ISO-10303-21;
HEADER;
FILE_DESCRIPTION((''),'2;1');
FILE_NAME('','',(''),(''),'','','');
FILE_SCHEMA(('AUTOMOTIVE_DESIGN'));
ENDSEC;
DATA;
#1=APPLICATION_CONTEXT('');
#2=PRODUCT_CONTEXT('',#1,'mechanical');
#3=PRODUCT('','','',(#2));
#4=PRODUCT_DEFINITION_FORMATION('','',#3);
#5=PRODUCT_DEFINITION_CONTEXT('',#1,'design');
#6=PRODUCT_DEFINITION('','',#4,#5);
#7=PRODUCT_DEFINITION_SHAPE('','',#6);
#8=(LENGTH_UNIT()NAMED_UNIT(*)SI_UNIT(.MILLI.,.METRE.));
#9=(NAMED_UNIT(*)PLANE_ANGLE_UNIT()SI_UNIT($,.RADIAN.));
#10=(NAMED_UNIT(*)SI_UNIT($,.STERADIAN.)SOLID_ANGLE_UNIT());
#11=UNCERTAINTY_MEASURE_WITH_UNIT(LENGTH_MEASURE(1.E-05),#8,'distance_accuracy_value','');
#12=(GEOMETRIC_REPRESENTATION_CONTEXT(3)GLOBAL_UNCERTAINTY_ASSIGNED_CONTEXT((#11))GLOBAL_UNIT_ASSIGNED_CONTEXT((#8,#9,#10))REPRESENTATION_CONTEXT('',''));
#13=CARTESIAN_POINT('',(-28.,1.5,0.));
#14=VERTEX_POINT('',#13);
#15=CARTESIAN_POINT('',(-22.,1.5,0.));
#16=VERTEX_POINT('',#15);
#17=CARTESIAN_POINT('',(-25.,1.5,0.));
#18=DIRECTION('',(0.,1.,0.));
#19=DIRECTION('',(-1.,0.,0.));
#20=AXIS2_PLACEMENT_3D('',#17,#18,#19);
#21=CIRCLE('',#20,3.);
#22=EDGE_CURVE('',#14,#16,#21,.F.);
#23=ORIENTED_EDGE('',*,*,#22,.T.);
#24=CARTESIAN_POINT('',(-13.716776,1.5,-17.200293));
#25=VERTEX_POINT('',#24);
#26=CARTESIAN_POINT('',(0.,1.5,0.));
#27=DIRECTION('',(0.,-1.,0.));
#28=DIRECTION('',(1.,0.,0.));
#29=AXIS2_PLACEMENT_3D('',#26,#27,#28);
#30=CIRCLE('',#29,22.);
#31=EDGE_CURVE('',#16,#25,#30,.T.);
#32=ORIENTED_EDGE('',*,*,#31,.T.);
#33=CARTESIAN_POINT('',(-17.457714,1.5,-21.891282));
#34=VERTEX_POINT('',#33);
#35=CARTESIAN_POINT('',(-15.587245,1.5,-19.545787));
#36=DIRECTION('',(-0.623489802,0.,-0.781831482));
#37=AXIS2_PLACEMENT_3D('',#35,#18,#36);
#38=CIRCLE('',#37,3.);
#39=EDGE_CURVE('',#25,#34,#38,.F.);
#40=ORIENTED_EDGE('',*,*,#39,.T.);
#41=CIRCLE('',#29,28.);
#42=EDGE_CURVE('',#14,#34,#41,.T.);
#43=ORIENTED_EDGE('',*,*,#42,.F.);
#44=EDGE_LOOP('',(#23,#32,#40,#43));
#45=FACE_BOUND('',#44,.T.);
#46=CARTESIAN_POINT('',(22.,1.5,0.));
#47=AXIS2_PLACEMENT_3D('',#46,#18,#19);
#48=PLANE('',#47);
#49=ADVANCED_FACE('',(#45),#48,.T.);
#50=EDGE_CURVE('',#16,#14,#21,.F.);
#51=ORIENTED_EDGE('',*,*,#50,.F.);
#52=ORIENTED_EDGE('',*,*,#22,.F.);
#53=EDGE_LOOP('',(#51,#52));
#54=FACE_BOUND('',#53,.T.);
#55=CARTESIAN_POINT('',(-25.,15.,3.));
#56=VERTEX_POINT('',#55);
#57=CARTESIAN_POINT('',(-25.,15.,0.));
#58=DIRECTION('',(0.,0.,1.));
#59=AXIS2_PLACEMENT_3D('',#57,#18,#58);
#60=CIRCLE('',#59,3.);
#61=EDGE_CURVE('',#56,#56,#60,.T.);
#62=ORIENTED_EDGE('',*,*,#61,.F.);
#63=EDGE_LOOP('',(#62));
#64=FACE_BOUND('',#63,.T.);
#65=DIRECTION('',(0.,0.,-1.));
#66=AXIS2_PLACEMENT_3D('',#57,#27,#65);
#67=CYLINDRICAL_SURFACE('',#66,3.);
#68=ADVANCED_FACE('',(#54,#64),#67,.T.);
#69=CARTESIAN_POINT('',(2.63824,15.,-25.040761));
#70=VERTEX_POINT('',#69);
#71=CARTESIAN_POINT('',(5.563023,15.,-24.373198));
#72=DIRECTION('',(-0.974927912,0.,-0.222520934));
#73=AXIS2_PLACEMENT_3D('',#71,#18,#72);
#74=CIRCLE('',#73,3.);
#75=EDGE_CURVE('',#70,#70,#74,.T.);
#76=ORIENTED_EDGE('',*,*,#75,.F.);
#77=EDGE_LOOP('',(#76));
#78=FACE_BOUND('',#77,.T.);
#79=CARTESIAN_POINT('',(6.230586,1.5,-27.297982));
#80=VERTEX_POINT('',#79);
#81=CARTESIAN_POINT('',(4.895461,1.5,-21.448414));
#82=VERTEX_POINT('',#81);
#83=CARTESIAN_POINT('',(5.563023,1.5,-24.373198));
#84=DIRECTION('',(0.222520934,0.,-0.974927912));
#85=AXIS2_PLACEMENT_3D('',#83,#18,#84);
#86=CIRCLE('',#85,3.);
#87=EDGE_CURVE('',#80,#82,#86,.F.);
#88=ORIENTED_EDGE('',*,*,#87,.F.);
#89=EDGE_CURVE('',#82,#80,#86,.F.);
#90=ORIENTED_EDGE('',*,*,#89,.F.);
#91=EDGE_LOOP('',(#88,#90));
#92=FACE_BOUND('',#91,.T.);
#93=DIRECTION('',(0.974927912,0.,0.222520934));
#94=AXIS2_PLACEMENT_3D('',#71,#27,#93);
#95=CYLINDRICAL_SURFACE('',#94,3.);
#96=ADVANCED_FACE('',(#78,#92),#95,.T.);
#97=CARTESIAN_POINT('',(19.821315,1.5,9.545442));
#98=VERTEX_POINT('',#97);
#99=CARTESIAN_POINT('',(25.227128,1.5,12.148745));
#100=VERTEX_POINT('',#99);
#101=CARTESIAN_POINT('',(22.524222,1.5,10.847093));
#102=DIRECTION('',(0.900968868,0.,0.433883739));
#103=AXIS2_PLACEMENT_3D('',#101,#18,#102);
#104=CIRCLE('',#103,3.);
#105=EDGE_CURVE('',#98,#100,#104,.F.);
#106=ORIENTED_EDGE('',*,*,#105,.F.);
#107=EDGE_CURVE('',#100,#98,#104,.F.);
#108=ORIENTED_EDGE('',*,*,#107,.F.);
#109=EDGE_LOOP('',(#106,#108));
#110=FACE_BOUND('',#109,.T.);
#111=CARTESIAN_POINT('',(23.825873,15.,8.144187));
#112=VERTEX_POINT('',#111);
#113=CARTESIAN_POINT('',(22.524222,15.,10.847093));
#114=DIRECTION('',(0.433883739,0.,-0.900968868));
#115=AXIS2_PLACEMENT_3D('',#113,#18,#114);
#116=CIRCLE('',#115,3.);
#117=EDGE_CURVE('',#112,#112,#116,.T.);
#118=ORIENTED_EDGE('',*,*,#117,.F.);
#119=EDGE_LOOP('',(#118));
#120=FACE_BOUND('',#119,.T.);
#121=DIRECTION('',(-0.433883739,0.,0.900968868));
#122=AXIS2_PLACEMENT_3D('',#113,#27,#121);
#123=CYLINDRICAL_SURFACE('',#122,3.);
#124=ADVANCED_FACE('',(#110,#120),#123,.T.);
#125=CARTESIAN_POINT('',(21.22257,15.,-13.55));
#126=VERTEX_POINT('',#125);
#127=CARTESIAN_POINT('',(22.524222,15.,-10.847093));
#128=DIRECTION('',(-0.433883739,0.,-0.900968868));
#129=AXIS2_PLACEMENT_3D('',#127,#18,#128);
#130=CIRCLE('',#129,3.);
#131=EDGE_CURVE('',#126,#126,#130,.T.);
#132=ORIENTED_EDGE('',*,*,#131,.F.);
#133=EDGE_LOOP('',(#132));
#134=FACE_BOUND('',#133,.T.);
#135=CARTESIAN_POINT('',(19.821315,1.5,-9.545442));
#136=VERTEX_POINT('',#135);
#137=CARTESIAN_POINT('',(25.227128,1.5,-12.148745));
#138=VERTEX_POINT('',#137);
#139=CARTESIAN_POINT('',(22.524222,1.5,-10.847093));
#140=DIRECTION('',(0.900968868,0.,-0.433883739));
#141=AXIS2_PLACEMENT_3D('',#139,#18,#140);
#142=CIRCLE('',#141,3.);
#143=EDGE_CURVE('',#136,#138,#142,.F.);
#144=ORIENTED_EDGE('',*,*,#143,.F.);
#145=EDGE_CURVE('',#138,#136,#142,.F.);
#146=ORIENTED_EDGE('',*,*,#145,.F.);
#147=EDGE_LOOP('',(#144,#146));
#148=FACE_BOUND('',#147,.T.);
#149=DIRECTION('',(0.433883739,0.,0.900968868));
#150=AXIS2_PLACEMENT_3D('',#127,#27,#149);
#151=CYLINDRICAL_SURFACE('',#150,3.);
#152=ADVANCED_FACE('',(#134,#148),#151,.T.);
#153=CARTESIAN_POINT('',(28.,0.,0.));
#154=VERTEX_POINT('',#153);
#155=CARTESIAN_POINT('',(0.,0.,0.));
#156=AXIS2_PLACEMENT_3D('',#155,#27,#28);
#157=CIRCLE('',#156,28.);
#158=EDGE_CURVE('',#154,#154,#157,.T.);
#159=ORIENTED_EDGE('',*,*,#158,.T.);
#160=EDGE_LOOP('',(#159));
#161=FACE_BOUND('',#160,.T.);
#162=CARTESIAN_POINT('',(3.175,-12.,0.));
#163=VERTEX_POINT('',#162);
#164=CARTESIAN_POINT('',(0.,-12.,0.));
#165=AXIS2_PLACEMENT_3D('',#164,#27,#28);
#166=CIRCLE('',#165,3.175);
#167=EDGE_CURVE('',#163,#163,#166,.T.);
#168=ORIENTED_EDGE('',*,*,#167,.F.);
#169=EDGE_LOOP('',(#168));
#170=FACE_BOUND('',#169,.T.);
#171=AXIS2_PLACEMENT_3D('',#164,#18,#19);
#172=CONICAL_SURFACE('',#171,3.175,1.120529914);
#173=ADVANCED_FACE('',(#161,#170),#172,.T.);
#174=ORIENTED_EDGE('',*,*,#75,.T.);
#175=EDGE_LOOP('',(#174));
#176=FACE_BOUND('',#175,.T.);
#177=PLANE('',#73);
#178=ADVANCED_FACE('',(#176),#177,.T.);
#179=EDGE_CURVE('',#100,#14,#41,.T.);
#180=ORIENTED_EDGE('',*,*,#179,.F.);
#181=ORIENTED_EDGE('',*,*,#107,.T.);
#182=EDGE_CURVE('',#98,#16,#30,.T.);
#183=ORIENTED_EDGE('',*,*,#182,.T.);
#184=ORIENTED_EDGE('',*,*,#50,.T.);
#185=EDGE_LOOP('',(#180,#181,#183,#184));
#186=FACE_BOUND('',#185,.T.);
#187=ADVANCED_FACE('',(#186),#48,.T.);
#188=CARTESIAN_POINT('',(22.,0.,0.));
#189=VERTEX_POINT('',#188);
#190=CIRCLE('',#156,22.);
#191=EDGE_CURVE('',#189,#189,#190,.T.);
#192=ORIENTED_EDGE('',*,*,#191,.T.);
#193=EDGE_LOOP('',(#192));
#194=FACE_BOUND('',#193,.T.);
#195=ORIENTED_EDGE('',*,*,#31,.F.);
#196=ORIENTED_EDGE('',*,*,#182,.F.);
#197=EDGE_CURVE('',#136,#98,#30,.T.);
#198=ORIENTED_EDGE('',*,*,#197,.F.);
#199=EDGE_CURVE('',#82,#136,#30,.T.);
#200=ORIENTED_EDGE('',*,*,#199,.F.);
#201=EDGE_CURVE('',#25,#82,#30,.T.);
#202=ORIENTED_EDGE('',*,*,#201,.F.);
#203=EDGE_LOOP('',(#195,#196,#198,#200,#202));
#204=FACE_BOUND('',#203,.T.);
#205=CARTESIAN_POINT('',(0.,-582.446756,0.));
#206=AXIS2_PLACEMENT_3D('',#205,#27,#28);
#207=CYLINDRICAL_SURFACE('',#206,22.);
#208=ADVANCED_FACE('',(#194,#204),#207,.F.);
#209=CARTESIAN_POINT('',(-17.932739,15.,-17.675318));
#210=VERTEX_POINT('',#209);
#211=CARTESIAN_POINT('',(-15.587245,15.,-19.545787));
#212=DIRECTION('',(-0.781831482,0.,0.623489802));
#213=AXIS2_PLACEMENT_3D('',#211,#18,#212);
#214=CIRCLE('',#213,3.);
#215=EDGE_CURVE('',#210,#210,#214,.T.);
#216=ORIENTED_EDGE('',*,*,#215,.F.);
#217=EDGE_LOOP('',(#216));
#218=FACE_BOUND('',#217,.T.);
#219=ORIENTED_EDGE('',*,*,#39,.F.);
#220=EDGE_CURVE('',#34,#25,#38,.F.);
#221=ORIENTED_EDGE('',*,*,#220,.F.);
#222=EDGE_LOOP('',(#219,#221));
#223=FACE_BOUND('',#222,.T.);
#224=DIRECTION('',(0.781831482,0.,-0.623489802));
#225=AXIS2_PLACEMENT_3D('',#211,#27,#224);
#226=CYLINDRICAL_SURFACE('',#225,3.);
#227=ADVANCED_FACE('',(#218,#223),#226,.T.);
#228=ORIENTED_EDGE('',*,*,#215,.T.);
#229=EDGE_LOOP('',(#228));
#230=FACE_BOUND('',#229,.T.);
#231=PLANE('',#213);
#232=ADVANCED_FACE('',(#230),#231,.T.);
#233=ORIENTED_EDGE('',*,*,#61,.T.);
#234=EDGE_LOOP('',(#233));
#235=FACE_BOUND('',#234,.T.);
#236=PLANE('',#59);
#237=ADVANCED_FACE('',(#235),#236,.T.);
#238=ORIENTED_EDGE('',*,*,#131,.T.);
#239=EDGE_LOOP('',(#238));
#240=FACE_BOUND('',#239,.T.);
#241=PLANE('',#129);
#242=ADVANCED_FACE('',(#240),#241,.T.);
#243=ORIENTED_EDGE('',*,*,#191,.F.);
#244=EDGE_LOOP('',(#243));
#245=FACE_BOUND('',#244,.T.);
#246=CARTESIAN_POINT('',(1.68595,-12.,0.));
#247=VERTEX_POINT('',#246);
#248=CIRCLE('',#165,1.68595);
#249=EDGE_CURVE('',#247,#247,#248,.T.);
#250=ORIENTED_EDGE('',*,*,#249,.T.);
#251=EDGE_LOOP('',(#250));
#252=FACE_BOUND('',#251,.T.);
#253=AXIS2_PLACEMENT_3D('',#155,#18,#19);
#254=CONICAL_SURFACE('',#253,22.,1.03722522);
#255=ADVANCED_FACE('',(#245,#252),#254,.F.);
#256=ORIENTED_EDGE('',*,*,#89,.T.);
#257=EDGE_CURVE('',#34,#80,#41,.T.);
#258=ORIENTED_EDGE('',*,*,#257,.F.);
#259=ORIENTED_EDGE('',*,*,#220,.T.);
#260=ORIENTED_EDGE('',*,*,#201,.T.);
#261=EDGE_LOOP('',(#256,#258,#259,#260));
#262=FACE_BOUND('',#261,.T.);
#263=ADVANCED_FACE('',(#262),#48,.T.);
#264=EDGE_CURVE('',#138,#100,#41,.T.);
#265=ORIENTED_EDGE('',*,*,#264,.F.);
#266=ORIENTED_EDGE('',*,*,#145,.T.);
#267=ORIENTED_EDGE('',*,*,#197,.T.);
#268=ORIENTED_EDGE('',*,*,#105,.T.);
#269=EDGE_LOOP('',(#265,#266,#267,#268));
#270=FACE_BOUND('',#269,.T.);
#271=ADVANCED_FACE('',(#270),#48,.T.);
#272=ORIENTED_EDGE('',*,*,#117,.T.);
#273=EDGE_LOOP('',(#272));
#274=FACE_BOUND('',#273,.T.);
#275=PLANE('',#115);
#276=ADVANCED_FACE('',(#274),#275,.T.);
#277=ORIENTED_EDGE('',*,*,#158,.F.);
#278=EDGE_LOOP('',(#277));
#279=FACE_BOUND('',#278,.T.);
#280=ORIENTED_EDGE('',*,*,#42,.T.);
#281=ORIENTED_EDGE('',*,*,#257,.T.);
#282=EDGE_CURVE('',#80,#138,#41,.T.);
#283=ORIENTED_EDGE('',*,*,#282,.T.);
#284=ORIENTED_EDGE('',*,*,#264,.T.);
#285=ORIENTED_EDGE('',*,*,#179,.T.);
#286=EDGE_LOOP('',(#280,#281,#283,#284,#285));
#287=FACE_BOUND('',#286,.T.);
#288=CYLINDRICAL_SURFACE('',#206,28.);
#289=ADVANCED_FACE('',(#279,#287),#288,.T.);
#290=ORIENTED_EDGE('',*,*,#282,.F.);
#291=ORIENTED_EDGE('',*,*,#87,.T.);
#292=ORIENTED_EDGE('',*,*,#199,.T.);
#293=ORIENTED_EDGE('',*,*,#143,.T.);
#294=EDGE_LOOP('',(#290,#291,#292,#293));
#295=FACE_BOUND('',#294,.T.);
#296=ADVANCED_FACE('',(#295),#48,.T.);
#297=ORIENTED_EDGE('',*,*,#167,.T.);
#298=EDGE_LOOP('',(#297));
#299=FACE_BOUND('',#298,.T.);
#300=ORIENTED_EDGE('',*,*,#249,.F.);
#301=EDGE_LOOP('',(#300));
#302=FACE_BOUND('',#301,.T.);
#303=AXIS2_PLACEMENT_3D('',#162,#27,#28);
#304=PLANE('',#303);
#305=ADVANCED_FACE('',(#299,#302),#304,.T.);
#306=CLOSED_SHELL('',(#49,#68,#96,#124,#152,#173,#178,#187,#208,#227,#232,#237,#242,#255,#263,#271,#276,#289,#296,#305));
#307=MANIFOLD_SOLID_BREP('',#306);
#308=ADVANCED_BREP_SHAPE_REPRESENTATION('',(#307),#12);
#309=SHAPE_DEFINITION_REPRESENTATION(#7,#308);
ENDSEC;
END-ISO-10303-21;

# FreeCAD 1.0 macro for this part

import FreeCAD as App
import Part
import Sketcher
from FreeCAD import Vector

doc = App.newDocument("Part")
body = doc.addObject("PartDesign::Body", "Body")

# Sketch on XY plane
sketch1 = doc.addObject("Sketcher::SketchObject", "Sketch")
body.addObject(sketch1)
sketch1.AttachmentSupport = (doc.XY_Plane, [""])
sketch1.MapMode = "FlatFace"
sketch1.addGeometry([
    Part.LineSegment(Vector(3.2, -12, 0), Vector(28, 0, 0)),  # 0
    Part.LineSegment(Vector(28, 0, 0), Vector(28, 1.5, 0)),  # 1
    Part.LineSegment(Vector(28, 1.5, 0), Vector(22, 1.5, 0)),  # 2
    Part.LineSegment(Vector(22, 1.5, 0), Vector(22, 0, 0)),  # 3
    Part.LineSegment(Vector(22, 0, 0), Vector(1.7, -12, 0)),  # 4
    Part.LineSegment(Vector(1.7, -12, 0), Vector(3.2, -12, 0)),  # 5
], False)
sketch1.addConstraint([
    Sketcher.Constraint("Coincident", 0, 2, 1, 1),
    Sketcher.Constraint("Coincident", 1, 2, 2, 1),
    Sketcher.Constraint("Coincident", 2, 2, 3, 1),
    Sketcher.Constraint("Coincident", 3, 2, 4, 1),
    Sketcher.Constraint("Coincident", 4, 2, 5, 1),
    Sketcher.Constraint("Coincident", 5, 2, 0, 1),
    Sketcher.Constraint("Vertical", 1),
    Sketcher.Constraint("Horizontal", 2),
    Sketcher.Constraint("Vertical", 3),
    Sketcher.Constraint("Horizontal", 5),
    Sketcher.Constraint("PointOnObject", 0, 2, -1),
    Sketcher.Constraint("PointOnObject", 3, 2, -1),
    Sketcher.Constraint("DistanceX", 2, 2, 2, 1, 6.0),
    Sketcher.Constraint("DistanceY", 1, 1, 1, 2, 1.5),
    Sketcher.Constraint("DistanceX", -1, 1, 0, 2, 28.0),
    Sketcher.Constraint("DistanceY", 4, 2, -1, 1, 12.0),
    Sketcher.Constraint("DistanceX", -1, 1, 5, 2, 3.175),
    Sketcher.Constraint("DistanceX", 5, 1, 5, 2, 1.48905),
])
revolution = doc.addObject("PartDesign::Revolution", "Revolution")
body.addObject(revolution)
revolution.Profile = sketch1
revolution.ReferenceAxis = (sketch1, ["V_Axis"])
revolution.Angle = 360

# Sketch on XZ plane
sketch2 = doc.addObject("Sketcher::SketchObject", "Sketch001")
body.addObject(sketch2)
sketch2.AttachmentSupport = (doc.XZ_Plane, [""])
sketch2.MapMode = "FlatFace"
sketch2.addGeometry(Part.Circle(Vector(-25, 0, 0), Vector(0, 0, 1), 3), False)
sketch2.addConstraint([
    Sketcher.Constraint("PointOnObject", 0, 3, -1),
    Sketcher.Constraint("Diameter", 0, 6.0),
    Sketcher.Constraint("DistanceX", 0, 3, -1, 1, 25.0),
])
pad1 = doc.addObject("PartDesign::Pad", "Pad")
body.addObject(pad1)
pad1.Profile = sketch2
pad1.Length = 15
pad1.Reversed = True
doc.recompute()

polarpattern = doc.addObject("PartDesign::PolarPattern", "PolarPattern")
body.addObject(polarpattern)
polarpattern.Originals = [pad1]
polarpattern.Axis = (doc.Y_Axis, [""])
polarpattern.Angle = 205.714286
polarpattern.Occurrences = 5
polarpattern.Reversed = True
body.Tip = polarpattern

doc.recompute()
